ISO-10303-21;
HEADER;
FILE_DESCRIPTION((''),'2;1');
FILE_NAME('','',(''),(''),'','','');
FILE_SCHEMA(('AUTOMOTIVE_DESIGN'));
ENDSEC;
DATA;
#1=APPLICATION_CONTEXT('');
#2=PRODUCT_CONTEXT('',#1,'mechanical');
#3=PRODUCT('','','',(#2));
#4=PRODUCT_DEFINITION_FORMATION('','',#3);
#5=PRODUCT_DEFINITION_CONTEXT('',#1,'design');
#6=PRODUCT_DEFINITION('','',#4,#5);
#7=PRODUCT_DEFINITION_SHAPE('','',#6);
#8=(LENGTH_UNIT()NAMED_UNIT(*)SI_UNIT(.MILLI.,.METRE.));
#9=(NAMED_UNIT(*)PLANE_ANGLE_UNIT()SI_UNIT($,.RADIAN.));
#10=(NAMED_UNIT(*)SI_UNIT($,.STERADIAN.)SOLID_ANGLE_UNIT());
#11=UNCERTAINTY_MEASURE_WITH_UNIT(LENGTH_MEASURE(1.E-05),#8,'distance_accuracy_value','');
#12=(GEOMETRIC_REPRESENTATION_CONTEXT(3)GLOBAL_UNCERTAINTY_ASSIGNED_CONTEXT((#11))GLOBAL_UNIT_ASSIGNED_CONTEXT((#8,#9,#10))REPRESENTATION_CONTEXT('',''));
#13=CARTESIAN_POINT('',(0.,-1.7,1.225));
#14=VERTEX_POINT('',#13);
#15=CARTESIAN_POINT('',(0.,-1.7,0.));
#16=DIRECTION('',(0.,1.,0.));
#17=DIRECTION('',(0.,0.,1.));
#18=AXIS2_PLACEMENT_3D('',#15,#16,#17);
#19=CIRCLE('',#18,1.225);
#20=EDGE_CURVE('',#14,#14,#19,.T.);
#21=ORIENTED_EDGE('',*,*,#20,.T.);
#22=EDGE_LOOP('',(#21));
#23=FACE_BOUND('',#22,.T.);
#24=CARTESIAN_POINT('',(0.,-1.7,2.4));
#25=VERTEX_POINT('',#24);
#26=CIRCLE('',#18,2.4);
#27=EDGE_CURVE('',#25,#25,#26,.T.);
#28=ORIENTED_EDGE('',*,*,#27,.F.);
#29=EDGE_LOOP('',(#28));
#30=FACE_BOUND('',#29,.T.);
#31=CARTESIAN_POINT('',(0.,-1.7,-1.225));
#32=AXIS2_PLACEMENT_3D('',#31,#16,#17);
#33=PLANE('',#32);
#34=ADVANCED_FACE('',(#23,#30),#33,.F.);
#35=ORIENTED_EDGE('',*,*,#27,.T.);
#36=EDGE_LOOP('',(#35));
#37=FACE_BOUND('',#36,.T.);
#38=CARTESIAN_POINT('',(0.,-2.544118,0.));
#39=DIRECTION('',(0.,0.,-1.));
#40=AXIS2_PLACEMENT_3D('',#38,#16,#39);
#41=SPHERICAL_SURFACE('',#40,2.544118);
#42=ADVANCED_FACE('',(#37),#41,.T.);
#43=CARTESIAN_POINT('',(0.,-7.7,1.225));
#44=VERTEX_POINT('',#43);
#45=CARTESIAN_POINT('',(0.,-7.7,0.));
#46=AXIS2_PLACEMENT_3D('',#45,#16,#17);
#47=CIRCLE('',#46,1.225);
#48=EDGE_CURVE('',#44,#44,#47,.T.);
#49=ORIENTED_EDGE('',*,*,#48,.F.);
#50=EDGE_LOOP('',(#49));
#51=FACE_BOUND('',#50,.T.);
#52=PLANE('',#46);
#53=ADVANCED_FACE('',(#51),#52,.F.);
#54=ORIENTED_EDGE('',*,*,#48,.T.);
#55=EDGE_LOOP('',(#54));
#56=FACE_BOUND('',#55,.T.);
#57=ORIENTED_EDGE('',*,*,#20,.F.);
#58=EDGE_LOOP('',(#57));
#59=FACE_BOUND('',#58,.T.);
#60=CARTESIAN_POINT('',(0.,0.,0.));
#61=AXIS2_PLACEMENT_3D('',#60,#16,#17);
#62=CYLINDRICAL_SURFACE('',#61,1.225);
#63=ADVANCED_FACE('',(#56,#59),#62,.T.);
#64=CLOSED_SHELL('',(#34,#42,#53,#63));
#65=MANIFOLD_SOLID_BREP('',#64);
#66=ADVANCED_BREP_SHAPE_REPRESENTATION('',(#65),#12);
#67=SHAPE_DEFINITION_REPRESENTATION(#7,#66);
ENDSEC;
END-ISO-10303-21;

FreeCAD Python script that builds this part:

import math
import FreeCAD as App
import Part
import Sketcher
Q = App.Units.Quantity

doc = App.newDocument("Part")
body = doc.addObject("PartDesign::Body", "Body")

# Sketch on YZ plane
sketch1 = body.newObject("Sketcher::SketchObject", "Sketch")
sketch1.AttachmentSupport = (doc.getObject("YZ_Plane"), [""])
sketch1.MapMode = "FlatFace"
sketch1.addGeometry([
    Part.LineSegment(App.Vector(-7.7, 0, 0), App.Vector(-7.7, -1.2, 0)),  # 0
    Part.LineSegment(App.Vector(-7.7, -1.2, 0), App.Vector(-1.7, -1.2, 0)),  # 1
    Part.LineSegment(App.Vector(-1.7, -1.2, 0), App.Vector(-1.7, -2.4, 0)),  # 2
    Part.ArcOfCircle(Part.Circle(App.Vector(-2.5, 0, 0), App.Vector(0, 0, 1), 2.5), math.radians(-71), math.radians(0)),  # 3
    Part.LineSegment(App.Vector(0, 0, 0), App.Vector(-7.7, 0, 0)),  # 4
], False)
sketch1.addConstraint([
    Sketcher.Constraint("Coincident", 0, 2, 1, 1),
    Sketcher.Constraint("Coincident", 1, 2, 2, 1),
    Sketcher.Constraint("Coincident", 2, 2, 3, 1),
    Sketcher.Constraint("Coincident", 3, 2, 4, 1),
    Sketcher.Constraint("Coincident", 4, 2, 0, 1),
    Sketcher.Constraint("Vertical", 0),
    Sketcher.Constraint("Horizontal", 1),
    Sketcher.Constraint("Vertical", 2),
    Sketcher.Constraint("Horizontal", 4),
    Sketcher.Constraint("Coincident", 3, 2, -1, 1),
    Sketcher.Constraint("PointOnObject", 3, 3, -1),
    Sketcher.Constraint("DistanceX", 1, 1, 1, 2, Q("6 mm")),
    Sketcher.Constraint("DistanceX", 4, 2, 4, 1, Q("7.7 mm")),
    Sketcher.Constraint("DistanceY", 2, 2, -1, 1, Q("2.4 mm")),
    Sketcher.Constraint("DistanceY", 0, 2, 0, 1, Q("1.225 mm")),
])
revolution = body.newObject("PartDesign::Revolution", "Revolution")
revolution.Profile = sketch1
revolution.ReferenceAxis = (sketch1, ["H_Axis"])
revolution.Angle = 360

doc.recompute()
